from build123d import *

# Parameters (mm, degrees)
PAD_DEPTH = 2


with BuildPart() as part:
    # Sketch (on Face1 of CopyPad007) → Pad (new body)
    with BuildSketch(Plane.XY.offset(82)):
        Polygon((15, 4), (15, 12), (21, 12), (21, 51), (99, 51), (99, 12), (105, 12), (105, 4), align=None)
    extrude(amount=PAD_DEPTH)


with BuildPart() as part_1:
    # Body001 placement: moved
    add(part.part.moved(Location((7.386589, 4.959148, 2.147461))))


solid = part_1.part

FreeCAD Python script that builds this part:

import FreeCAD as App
import Part
import Sketcher

V = App.Vector
Q = App.Units.Quantity


def add_polygon(sketch, points):
    """Adds a closed chain of lines whose ends are joined by coincident constraints."""
    first, n = sketch.GeometryCount, len(points)
    for a, b in zip(points, points[1:] + points[:1]):
        sketch.addGeometry(Part.LineSegment(App.Vector(*a, 0), App.Vector(*b, 0)), False)
    for i in range(n):
        sketch.addConstraint(Sketcher.Constraint("Coincident", first + i, 2, first + (i + 1) % n, 1))

doc = App.newDocument("Part")
params = doc.addObject("Spreadsheet::Sheet", "Params")
for row, (alias, value) in enumerate([
    ("sketch1_width", "90 mm"),
    ("sketch1_width2", "6 mm"),
    ("sketch1_height", "8 mm"),
    ("sketch1_height2", "39 mm"),
    ("pad1_length", "2 mm"),
], start=1):
    params.set(f"A{row}", alias)
    params.set(f"B{row}", "=" + value)
    params.setAlias(f"B{row}", alias)

body = doc.addObject("PartDesign::Body", "Body")

sketch1 = doc.addObject("Sketcher::SketchObject", "Sketch")
body.addObject(sketch1)
sketch1.AttachmentSupport = (doc.XY_Plane, [""])
sketch1.MapMode = "FlatFace"
sketch1.AttachmentOffset = App.Placement(V(0, 0, 82), App.Rotation())
add_polygon(sketch1, [(15, 12), (15, 4), (105, 4), (105, 12), (99, 12), (99, 51), (21, 51), (21, 12)])
sketch1.addConstraint(Sketcher.Constraint("Vertical", 0))
sketch1.addConstraint(Sketcher.Constraint("Horizontal", 1))
sketch1.addConstraint(Sketcher.Constraint("Vertical", 2))
sketch1.addConstraint(Sketcher.Constraint("Horizontal", 3))
sketch1.addConstraint(Sketcher.Constraint("Vertical", 4))
sketch1.addConstraint(Sketcher.Constraint("Horizontal", 5))
sketch1.addConstraint(Sketcher.Constraint("Vertical", 6))
sketch1.addConstraint(Sketcher.Constraint("Horizontal", 7))
sketch1.addConstraint(Sketcher.Constraint("Horizontal", 3, 2, 6, 2))
sketch1.addConstraint(Sketcher.Constraint("Equal", 3, 7))
sketch1.addConstraint(Sketcher.Constraint("DistanceX", 1, 1, 1, 2, Q("90 mm")))
sketch1.addConstraint(Sketcher.Constraint("DistanceX", 3, 2, 3, 1, Q("6 mm")))
sketch1.addConstraint(Sketcher.Constraint("DistanceY", 0, 2, 0, 1, Q("8 mm")))
sketch1.addConstraint(Sketcher.Constraint("DistanceY", 4, 1, 4, 2, Q("39 mm")))
sketch1.addConstraint(Sketcher.Constraint("DistanceX", -1, 1, 0, 2, Q("15 mm")))
sketch1.addConstraint(Sketcher.Constraint("DistanceY", -1, 1, 0, 2, Q("4 mm")))
sketch1.setExpression("Constraints[18]", "Params.sketch1_width")
sketch1.setExpression("Constraints[19]", "Params.sketch1_width2")
sketch1.setExpression("Constraints[20]", "Params.sketch1_height")
sketch1.setExpression("Constraints[21]", "Params.sketch1_height2")
pad1 = doc.addObject("PartDesign::Pad", "Pad")
body.addObject(pad1)
pad1.Profile = sketch1
pad1.setExpression("Length", "Params.pad1_length")
body2 = doc.addObject("PartDesign::Body", "Body001")
doc.recompute()

body.Placement = App.Placement(V(7.386589, 4.959148, 2.147461), App.Rotation(V(0, 0, 1), 0))
boolean = doc.addObject("PartDesign::Boolean", "Boolean")
body2.addObject(boolean)
boolean.Type = "Fuse"
boolean.addObjects([body])

doc.recompute()
